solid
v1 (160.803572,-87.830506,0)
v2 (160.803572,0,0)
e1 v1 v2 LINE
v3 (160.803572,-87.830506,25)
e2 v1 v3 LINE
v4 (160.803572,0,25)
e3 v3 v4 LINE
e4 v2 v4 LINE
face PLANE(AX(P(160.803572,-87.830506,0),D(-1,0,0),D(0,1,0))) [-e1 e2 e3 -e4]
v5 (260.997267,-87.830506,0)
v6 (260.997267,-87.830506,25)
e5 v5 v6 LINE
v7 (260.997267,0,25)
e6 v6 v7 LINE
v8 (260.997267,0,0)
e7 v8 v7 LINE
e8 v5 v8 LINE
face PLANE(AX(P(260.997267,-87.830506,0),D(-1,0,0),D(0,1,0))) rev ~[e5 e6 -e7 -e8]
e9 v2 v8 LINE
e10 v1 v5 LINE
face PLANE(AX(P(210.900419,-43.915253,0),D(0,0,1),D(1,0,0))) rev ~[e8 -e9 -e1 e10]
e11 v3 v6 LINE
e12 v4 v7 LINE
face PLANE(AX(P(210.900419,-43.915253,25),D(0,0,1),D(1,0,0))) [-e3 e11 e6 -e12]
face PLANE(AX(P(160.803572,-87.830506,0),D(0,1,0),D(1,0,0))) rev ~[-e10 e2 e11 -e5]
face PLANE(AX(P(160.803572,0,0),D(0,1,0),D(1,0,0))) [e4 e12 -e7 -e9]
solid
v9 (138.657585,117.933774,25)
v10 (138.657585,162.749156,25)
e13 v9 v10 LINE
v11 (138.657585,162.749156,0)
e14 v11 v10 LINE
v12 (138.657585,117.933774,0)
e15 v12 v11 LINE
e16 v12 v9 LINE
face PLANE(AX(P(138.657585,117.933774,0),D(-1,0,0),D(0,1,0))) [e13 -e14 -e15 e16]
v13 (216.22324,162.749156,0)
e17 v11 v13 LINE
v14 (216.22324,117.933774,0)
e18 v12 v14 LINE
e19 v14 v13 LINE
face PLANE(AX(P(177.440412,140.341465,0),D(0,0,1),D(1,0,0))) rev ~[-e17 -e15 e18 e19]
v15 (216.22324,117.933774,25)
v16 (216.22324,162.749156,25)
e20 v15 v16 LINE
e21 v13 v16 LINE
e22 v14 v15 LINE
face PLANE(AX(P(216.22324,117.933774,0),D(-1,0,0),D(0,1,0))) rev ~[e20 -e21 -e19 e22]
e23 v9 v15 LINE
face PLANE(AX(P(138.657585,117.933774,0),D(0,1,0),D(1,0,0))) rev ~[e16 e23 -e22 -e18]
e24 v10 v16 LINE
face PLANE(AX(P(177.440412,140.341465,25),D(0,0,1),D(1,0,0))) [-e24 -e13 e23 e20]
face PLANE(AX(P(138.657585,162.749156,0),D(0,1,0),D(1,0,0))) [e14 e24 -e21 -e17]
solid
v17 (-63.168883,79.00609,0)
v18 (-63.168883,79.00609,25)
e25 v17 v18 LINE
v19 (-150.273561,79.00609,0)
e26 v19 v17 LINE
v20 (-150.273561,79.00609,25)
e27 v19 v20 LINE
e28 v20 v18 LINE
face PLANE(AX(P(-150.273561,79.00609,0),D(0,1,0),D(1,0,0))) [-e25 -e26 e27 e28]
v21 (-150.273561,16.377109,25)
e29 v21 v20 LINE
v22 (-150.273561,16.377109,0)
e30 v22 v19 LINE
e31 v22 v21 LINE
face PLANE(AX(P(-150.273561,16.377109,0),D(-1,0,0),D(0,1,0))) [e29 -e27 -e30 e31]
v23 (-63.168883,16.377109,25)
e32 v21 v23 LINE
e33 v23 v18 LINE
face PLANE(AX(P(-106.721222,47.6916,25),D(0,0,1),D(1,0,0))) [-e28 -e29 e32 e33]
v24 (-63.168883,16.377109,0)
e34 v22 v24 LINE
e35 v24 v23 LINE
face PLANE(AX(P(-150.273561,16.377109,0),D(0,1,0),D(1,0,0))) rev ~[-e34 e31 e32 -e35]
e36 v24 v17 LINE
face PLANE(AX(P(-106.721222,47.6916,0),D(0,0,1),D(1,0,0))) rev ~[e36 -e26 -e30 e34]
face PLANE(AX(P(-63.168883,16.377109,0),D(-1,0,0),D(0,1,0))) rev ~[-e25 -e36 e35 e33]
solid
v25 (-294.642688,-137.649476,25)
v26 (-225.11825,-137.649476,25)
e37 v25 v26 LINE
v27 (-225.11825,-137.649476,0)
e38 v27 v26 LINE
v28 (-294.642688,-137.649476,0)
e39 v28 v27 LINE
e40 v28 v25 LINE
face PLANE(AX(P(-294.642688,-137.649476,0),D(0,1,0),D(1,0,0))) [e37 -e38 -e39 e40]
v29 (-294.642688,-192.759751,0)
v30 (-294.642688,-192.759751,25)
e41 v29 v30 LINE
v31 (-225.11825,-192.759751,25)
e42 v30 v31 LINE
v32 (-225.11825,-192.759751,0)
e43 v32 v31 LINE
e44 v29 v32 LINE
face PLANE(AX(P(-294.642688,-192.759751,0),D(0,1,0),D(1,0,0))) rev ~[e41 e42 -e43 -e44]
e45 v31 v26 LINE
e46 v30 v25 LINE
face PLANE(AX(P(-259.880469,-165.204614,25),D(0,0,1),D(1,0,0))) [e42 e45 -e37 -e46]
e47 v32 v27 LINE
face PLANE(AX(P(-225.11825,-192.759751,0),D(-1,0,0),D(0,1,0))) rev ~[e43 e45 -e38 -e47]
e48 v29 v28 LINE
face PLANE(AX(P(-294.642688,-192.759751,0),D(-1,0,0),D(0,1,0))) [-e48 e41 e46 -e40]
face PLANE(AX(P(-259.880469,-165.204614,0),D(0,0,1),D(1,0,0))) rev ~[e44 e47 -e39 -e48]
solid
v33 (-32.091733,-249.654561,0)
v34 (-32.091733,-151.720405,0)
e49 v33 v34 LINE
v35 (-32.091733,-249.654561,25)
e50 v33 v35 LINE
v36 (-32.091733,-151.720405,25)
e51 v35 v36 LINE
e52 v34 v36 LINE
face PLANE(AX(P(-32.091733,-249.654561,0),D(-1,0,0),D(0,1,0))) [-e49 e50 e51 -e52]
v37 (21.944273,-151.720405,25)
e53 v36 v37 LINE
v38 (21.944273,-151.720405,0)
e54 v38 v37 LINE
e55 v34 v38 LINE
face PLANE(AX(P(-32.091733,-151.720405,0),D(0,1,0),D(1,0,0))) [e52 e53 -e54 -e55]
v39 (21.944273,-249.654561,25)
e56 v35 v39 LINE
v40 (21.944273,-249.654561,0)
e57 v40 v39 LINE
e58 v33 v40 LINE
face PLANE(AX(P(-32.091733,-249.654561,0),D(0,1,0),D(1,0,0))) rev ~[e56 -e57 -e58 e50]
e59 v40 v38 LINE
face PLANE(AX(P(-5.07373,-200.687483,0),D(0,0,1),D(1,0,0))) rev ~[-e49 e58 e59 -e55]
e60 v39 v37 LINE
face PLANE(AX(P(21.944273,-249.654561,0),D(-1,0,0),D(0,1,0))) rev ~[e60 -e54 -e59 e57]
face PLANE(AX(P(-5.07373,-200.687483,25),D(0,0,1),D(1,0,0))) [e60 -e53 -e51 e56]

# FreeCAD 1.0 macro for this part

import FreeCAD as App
import Part
import Sketcher

V = App.Vector
Q = App.Units.Quantity

doc = App.newDocument("Part")
params = doc.addObject("Spreadsheet::Sheet", "Params")
for row, (alias, value) in enumerate([
    ("pad1_length", "25 mm"),
], start=1):
    params.set(f"A{row}", alias)
    params.set(f"B{row}", "=" + value)
    params.setAlias(f"B{row}", alias)

body = doc.addObject("PartDesign::Body", "Body")
body.AllowCompound = True

sketch1 = doc.addObject("Sketcher::SketchObject", "Sketch")
body.addObject(sketch1)
sketch1.AttachmentSupport = (doc.XY_Plane, [""])
sketch1.MapMode = "FlatFace"
sketch1.addGeometry(Part.LineSegment(V(-150, 79, 0), V(-150, 16, 0)), False)
sketch1.addGeometry(Part.LineSegment(V(-150, 16, 0), V(-63, 16, 0)), False)
sketch1.addGeometry(Part.LineSegment(V(-63, 16, 0), V(-63, 79, 0)), False)
sketch1.addGeometry(Part.LineSegment(V(-63, 79, 0), V(-150, 79, 0)), False)
sketch1.addGeometry(Part.LineSegment(V(-295, -138, 0), V(-295, -193, 0)), False)
sketch1.addGeometry(Part.LineSegment(V(-295, -193, 0), V(-225, -193, 0)), False)
sketch1.addGeometry(Part.LineSegment(V(-225, -193, 0), V(-225, -138, 0)), False)
sketch1.addGeometry(Part.LineSegment(V(-225, -138, 0), V(-295, -138, 0)), False)
sketch1.addGeometry(Part.LineSegment(V(-32, -152, 0), V(-32, -250, 0)), False)
sketch1.addGeometry(Part.LineSegment(V(-32, -250, 0), V(22, -250, 0)), False)
sketch1.addGeometry(Part.LineSegment(V(22, -250, 0), V(22, -152, 0)), False)
sketch1.addGeometry(Part.LineSegment(V(22, -152, 0), V(-32, -152, 0)), False)
sketch1.addGeometry(Part.LineSegment(V(161, 0, 0), V(161, -88, 0)), False)
sketch1.addGeometry(Part.LineSegment(V(161, -88, 0), V(261, -88, 0)), False)
sketch1.addGeometry(Part.LineSegment(V(261, -88, 0), V(261, 0, 0)), False)
sketch1.addGeometry(Part.LineSegment(V(261, 0, 0), V(161, 0, 0)), False)
sketch1.addGeometry(Part.LineSegment(V(139, 163, 0), V(139, 118, 0)), False)
sketch1.addGeometry(Part.LineSegment(V(139, 118, 0), V(216, 118, 0)), False)
sketch1.addGeometry(Part.LineSegment(V(216, 118, 0), V(216, 163, 0)), False)
sketch1.addGeometry(Part.LineSegment(V(216, 163, 0), V(139, 163, 0)), False)
sketch1.addConstraint(Sketcher.Constraint("Coincident", 0, 2, 1, 1))
sketch1.addConstraint(Sketcher.Constraint("Coincident", 1, 2, 2, 1))
sketch1.addConstraint(Sketcher.Constraint("Coincident", 2, 2, 3, 1))
sketch1.addConstraint(Sketcher.Constraint("Coincident", 3, 2, 0, 1))
sketch1.addConstraint(Sketcher.Constraint("Coincident", 4, 2, 5, 1))
sketch1.addConstraint(Sketcher.Constraint("Coincident", 5, 2, 6, 1))
sketch1.addConstraint(Sketcher.Constraint("Coincident", 6, 2, 7, 1))
sketch1.addConstraint(Sketcher.Constraint("Coincident", 7, 2, 4, 1))
sketch1.addConstraint(Sketcher.Constraint("Coincident", 8, 2, 9, 1))
sketch1.addConstraint(Sketcher.Constraint("Coincident", 9, 2, 10, 1))
sketch1.addConstraint(Sketcher.Constraint("Coincident", 10, 2, 11, 1))
sketch1.addConstraint(Sketcher.Constraint("Coincident", 11, 2, 8, 1))
sketch1.addConstraint(Sketcher.Constraint("Coincident", 12, 2, 13, 1))
sketch1.addConstraint(Sketcher.Constraint("Coincident", 13, 2, 14, 1))
sketch1.addConstraint(Sketcher.Constraint("Coincident", 14, 2, 15, 1))
sketch1.addConstraint(Sketcher.Constraint("Coincident", 15, 2, 12, 1))
sketch1.addConstraint(Sketcher.Constraint("Coincident", 16, 2, 17, 1))
sketch1.addConstraint(Sketcher.Constraint("Coincident", 17, 2, 18, 1))
sketch1.addConstraint(Sketcher.Constraint("Coincident", 18, 2, 19, 1))
sketch1.addConstraint(Sketcher.Constraint("Coincident", 19, 2, 16, 1))
sketch1.addConstraint(Sketcher.Constraint("Vertical", 0))
sketch1.addConstraint(Sketcher.Constraint("Horizontal", 1))
sketch1.addConstraint(Sketcher.Constraint("Vertical", 2))
sketch1.addConstraint(Sketcher.Constraint("Horizontal", 3))
sketch1.addConstraint(Sketcher.Constraint("Vertical", 4))
sketch1.addConstraint(Sketcher.Constraint("Horizontal", 5))
sketch1.addConstraint(Sketcher.Constraint("Vertical", 6))
sketch1.addConstraint(Sketcher.Constraint("Horizontal", 7))
sketch1.addConstraint(Sketcher.Constraint("Vertical", 8))
sketch1.addConstraint(Sketcher.Constraint("Horizontal", 9))
sketch1.addConstraint(Sketcher.Constraint("Vertical", 10))
sketch1.addConstraint(Sketcher.Constraint("Horizontal", 11))
sketch1.addConstraint(Sketcher.Constraint("Vertical", 12))
sketch1.addConstraint(Sketcher.Constraint("Horizontal", 13))
sketch1.addConstraint(Sketcher.Constraint("Vertical", 14))
sketch1.addConstraint(Sketcher.Constraint("Horizontal", 15))
sketch1.addConstraint(Sketcher.Constraint("Vertical", 16))
sketch1.addConstraint(Sketcher.Constraint("Horizontal", 17))
sketch1.addConstraint(Sketcher.Constraint("Vertical", 18))
sketch1.addConstraint(Sketcher.Constraint("Horizontal", 19))
sketch1.addConstraint(Sketcher.Constraint("PointOnObject", 14, 2, -1))
sketch1.addConstraint(Sketcher.Constraint("DistanceX", 11, 2, 13, 2, Q("293.088999 mm")))
sketch1.addConstraint(Sketcher.Constraint("DistanceX", 1, 1, 1, 2, Q("87.104678 mm")))
sketch1.addConstraint(Sketcher.Constraint("DistanceY", 0, 2, 0, 1, Q("62.628981 mm")))
sketch1.addConstraint(Sketcher.Constraint("DistanceX", 10, 2, 12, 2, Q("138.859298 mm")))
sketch1.addConstraint(Sketcher.Constraint("DistanceY", 10, 2, 12, 2, Q("63.889899 mm")))
sketch1.addConstraint(Sketcher.Constraint("DistanceX", 5, 1, 5, 2, Q("69.524437 mm")))
sketch1.addConstraint(Sketcher.Constraint("DistanceX", 9, 1, 9, 2, Q("54.036006 mm")))
sketch1.addConstraint(Sketcher.Constraint("DistanceX", 17, 1, 17, 2, Q("77.565655 mm")))
sketch1.addConstraint(Sketcher.Constraint("DistanceY", 4, 2, 4, 1, Q("55.110275 mm")))
sketch1.addConstraint(Sketcher.Constraint("DistanceY", 8, 2, 8, 1, Q("97.934156 mm")))
sketch1.addConstraint(Sketcher.Constraint("DistanceY", 12, 2, 12, 1, Q("87.830506 mm")))
sketch1.addConstraint(Sketcher.Constraint("DistanceY", 16, 2, 16, 1, Q("44.815383 mm")))
sketch1.addConstraint(Sketcher.Constraint("DistanceX", 0, 2, -1, 1, Q("150.273561 mm")))
sketch1.addConstraint(Sketcher.Constraint("DistanceY", -1, 1, 0, 2, Q("16.377109 mm")))
sketch1.addConstraint(Sketcher.Constraint("DistanceY", 4, 2, -1, 1, Q("192.759751 mm")))
sketch1.addConstraint(Sketcher.Constraint("DistanceX", 5, 2, -1, 1, Q("225.11825 mm")))
sketch1.addConstraint(Sketcher.Constraint("DistanceX", -1, 1, 12, 2, Q("160.803572 mm")))
sketch1.addConstraint(Sketcher.Constraint("DistanceX", -1, 1, 17, 2, Q("216.22324 mm")))
sketch1.addConstraint(Sketcher.Constraint("DistanceY", 12, 2, 16, 2, Q("205.764279 mm")))
pad1 = doc.addObject("PartDesign::Pad", "Pad")
body.addObject(pad1)
pad1.Profile = sketch1
pad1.setExpression("Length", "Params.pad1_length")

doc.recompute()
